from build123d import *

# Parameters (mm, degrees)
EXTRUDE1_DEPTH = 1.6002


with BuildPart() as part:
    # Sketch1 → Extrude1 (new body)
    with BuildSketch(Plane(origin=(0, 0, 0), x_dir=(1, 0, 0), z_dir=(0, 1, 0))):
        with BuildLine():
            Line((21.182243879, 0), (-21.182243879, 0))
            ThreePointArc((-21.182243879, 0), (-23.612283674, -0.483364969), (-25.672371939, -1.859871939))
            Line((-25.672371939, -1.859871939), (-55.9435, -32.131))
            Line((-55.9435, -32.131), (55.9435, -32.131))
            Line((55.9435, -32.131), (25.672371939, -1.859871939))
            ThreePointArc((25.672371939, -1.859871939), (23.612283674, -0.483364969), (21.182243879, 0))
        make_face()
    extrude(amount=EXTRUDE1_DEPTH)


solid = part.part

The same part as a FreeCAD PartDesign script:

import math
import FreeCAD as App
import Part
import Sketcher

V = App.Vector
Q = App.Units.Quantity

doc = App.newDocument("Part")
body = doc.addObject("PartDesign::Body", "Body")

# Sketch on XZ plane
sketch1 = doc.addObject("Sketcher::SketchObject", "Sketch")
body.addObject(sketch1)
sketch1.AttachmentSupport = (doc.XZ_Plane, [""])
sketch1.MapMode = "FlatFace"
sketch1.addGeometry([
    Part.LineSegment(V(21.2, 0, 0), V(-21.2, 0, 0)),  # 0
    Part.ArcOfCircle(Part.Circle(V(-21.2, 6.4, 0), V(0, 0, 1), 6.4), math.radians(-135), math.radians(-90)),  # 1
    Part.LineSegment(V(-25.7, 1.9, 0), V(-55.9, 32.1, 0)),  # 2
    Part.LineSegment(V(-55.9, 32.1, 0), V(55.9, 32.1, 0)),  # 3
    Part.LineSegment(V(55.9, 32.1, 0), V(25.7, 1.9, 0)),  # 4
    Part.ArcOfCircle(Part.Circle(V(21.2, 6.4, 0), V(0, 0, 1), 6.4), math.radians(-90), math.radians(-45)),  # 5
], False)
sketch1.addConstraint([
    Sketcher.Constraint("Tangent", 0, 2, 1, 2),
    Sketcher.Constraint("Tangent", 1, 1, 2, 1),
    Sketcher.Constraint("Coincident", 2, 2, 3, 1),
    Sketcher.Constraint("Coincident", 3, 2, 4, 1),
    Sketcher.Constraint("Tangent", 4, 2, 5, 2),
    Sketcher.Constraint("Tangent", 5, 1, 0, 1),
    Sketcher.Constraint("Horizontal", 0),
    Sketcher.Constraint("Horizontal", 3),
    Sketcher.Constraint("Equal", 1, 5),
    Sketcher.Constraint("Symmetric", 0, 2, 5, 1, -1, 1),
    Sketcher.Constraint("Perpendicular", 2, 4),
    Sketcher.Constraint("Horizontal", 1, 1, 4, 2),
    Sketcher.Constraint("Radius", 1, Q("0.25 in")),
    Sketcher.Constraint("DistanceX", 3, 1, 3, 2, Q("4.405 in")),
    Sketcher.Constraint("DistanceY", -1, 1, 2, 2, Q("1.265 in")),
])
pad1 = doc.addObject("PartDesign::Pad", "Pad")
body.addObject(pad1)
pad1.Profile = sketch1
pad1.Length = Q("0.063 in")
pad1.Reversed = True

doc.recompute()
